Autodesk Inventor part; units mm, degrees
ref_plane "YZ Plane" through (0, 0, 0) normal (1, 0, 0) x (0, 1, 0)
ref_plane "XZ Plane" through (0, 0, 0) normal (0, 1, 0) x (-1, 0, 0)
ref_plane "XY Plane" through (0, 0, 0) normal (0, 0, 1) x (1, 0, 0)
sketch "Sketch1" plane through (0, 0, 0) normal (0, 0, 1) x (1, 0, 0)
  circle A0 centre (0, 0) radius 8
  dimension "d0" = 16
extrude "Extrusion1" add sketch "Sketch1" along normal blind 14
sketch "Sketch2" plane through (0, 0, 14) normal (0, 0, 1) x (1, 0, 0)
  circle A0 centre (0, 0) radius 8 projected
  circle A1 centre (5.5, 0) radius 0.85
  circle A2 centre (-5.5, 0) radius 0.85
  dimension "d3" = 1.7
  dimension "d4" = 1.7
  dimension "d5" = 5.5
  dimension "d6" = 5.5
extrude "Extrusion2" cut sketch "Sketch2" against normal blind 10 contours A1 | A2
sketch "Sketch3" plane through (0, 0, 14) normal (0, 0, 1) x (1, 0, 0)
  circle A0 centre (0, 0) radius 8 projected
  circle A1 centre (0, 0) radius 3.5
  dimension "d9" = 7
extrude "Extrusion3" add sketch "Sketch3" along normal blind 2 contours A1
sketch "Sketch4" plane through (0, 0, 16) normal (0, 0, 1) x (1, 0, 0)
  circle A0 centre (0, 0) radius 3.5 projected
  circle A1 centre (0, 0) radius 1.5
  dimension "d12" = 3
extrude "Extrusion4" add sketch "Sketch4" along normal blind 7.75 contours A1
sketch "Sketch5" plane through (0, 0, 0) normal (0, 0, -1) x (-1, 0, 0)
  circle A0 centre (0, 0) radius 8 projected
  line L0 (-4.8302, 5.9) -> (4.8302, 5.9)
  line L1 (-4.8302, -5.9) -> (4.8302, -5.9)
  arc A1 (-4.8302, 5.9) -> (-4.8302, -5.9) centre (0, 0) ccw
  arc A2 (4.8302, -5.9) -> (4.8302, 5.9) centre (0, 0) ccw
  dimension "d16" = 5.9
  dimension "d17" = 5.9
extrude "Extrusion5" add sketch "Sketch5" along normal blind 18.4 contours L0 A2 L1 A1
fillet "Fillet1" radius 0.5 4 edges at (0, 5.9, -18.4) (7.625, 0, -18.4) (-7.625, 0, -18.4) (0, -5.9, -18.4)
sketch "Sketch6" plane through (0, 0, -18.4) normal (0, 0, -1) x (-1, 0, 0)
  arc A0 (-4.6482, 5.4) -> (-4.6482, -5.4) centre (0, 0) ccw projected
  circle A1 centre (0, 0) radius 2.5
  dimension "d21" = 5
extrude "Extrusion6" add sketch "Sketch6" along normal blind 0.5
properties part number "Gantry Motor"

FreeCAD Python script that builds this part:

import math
import FreeCAD as App
import Part
import Sketcher


def edges_at(feature, points):
    """Names of the edges that pass closest to the given points."""
    edges = feature.Shape.Edges
    near = lambda p: min(range(len(edges)), key=lambda i: edges[i].distToShape(Part.Vertex(*p))[0])
    return sorted({f"Edge{near(p) + 1}" for p in points})

doc = App.newDocument("Part")
params = doc.addObject("Spreadsheet::Sheet", "Params")
for row, (alias, value) in enumerate([
    ("sketch1_diameter", "16 mm"),
    ("pad1_length", "14 mm"),
    ("sketch2_diameter", "1.7 mm"),
    ("pocket1_length", "10 mm"),
    ("sketch3_diameter", "7 mm"),
    ("pad2_length", "2 mm"),
    ("sketch4_diameter", "3 mm"),
    ("pad3_length", "7.75 mm"),
    ("pad4_length", "18.4 mm"),
    ("fillet_radius", "0.5 mm"),
    ("sketch6_diameter", "5 mm"),
    ("pad5_length", "0.5 mm"),
], start=1):
    params.set(f"A{row}", alias)
    params.set(f"B{row}", "=" + value)
    params.setAlias(f"B{row}", alias)

body = doc.addObject("PartDesign::Body", "Body")

# Sketch on XY plane
sketch1 = body.newObject("Sketcher::SketchObject", "Sketch")
sketch1.AttachmentSupport = (doc.getObject("XY_Plane"), [""])
sketch1.MapMode = "FlatFace"
sketch1.addGeometry(Part.Circle(App.Vector(0, 0, 0), App.Vector(0, 0, 1), 8), False)
sketch1.addConstraint([
    Sketcher.Constraint("Coincident", 0, 3, -1, 1),
    Sketcher.Constraint("Diameter", 0, 16.0),
])
sketch1.setExpression("Constraints[1]", "Params.sketch1_diameter")
pad1 = body.newObject("PartDesign::Pad", "Pad")
pad1.Profile = sketch1
pad1.setExpression("Length", "Params.pad1_length")

# Sketch on XY plane
sketch2 = body.newObject("Sketcher::SketchObject", "Sketch001")
sketch2.AttachmentSupport = (doc.getObject("XY_Plane"), [""])
sketch2.MapMode = "FlatFace"
sketch2.AttachmentOffset = App.Placement(App.Vector(0, 0, 14), App.Rotation())
sketch2.addGeometry([
    Part.Circle(App.Vector(5.5, 0, 0), App.Vector(0, 0, 1), 0.85),
    Part.Circle(App.Vector(-5.5, 0, 0), App.Vector(0, 0, 1), 0.85),
], False)
sketch2.addConstraint([
    Sketcher.Constraint("Equal", 0, 1),
    Sketcher.Constraint("Symmetric", 0, 3, 1, 3, -1, 1),
    Sketcher.Constraint("PointOnObject", 0, 3, -1),
    Sketcher.Constraint("Diameter", 0, 1.7),
    Sketcher.Constraint("DistanceX", -1, 1, 0, 3, 5.5),
])
sketch2.setExpression("Constraints[3]", "Params.sketch2_diameter")
pocket1 = body.newObject("PartDesign::Pocket", "Pocket")
pocket1.Profile = sketch2
pocket1.setExpression("Length", "Params.pocket1_length")

# Sketch on XY plane
sketch3 = body.newObject("Sketcher::SketchObject", "Sketch002")
sketch3.AttachmentSupport = (doc.getObject("XY_Plane"), [""])
sketch3.MapMode = "FlatFace"
sketch3.AttachmentOffset = App.Placement(App.Vector(0, 0, 14), App.Rotation())
sketch3.addGeometry(Part.Circle(App.Vector(0, 0, 0), App.Vector(0, 0, 1), 3.5), False)
sketch3.addConstraint([
    Sketcher.Constraint("Coincident", 0, 3, -1, 1),
    Sketcher.Constraint("Diameter", 0, 7.0),
])
sketch3.setExpression("Constraints[1]", "Params.sketch3_diameter")
pad2 = body.newObject("PartDesign::Pad", "Pad001")
pad2.Profile = sketch3
pad2.setExpression("Length", "Params.pad2_length")

# Sketch on XY plane
sketch4 = body.newObject("Sketcher::SketchObject", "Sketch003")
sketch4.AttachmentSupport = (doc.getObject("XY_Plane"), [""])
sketch4.MapMode = "FlatFace"
sketch4.AttachmentOffset = App.Placement(App.Vector(0, 0, 16), App.Rotation())
sketch4.addGeometry(Part.Circle(App.Vector(0, 0, 0), App.Vector(0, 0, 1), 1.5), False)
sketch4.addConstraint([
    Sketcher.Constraint("Coincident", 0, 3, -1, 1),
    Sketcher.Constraint("Diameter", 0, 3.0),
])
sketch4.setExpression("Constraints[1]", "Params.sketch4_diameter")
pad3 = body.newObject("PartDesign::Pad", "Pad002")
pad3.Profile = sketch4
pad3.setExpression("Length", "Params.pad3_length")

# Sketch on XY plane
sketch5 = body.newObject("Sketcher::SketchObject", "Sketch004")
sketch5.AttachmentSupport = (doc.getObject("XY_Plane"), [""])
sketch5.MapMode = "FlatFace"
sketch5.addGeometry([
    Part.LineSegment(App.Vector(-4.8302, 5.9, 0), App.Vector(4.8302, 5.9, 0)),
    Part.ArcOfCircle(Part.Circle(App.Vector(0, 0, 0), App.Vector(0, 0, 1), 7.625014), math.radians(-50.693569), math.radians(50.693569)),
    Part.LineSegment(App.Vector(4.8302, -5.9, 0), App.Vector(-4.8302, -5.9, 0)),
    Part.ArcOfCircle(Part.Circle(App.Vector(0, 0, 0), App.Vector(0, 0, 1), 7.625014), math.radians(129.306431), math.radians(230.693569)),
], False)
sketch5.addConstraint([
    Sketcher.Constraint("Coincident", 0, 2, 1, 2),
    Sketcher.Constraint("Coincident", 1, 1, 2, 1),
    Sketcher.Constraint("Coincident", 2, 2, 3, 2),
    Sketcher.Constraint("Coincident", 3, 1, 0, 1),
    Sketcher.Constraint("Horizontal", 0),
    Sketcher.Constraint("Horizontal", 2),
    Sketcher.Constraint("Coincident", 1, 3, -1, 1),
    Sketcher.Constraint("Coincident", 3, 3, -1, 1),
    Sketcher.Constraint("Equal", 1, 3),
    Sketcher.Constraint("Vertical", 0, 2, 1, 1),
    Sketcher.Constraint("DistanceY", -1, 1, 0, 2, 5.9),
    Sketcher.Constraint("Radius", 1, 7.625),
])
pad4 = body.newObject("PartDesign::Pad", "Pad003")
pad4.Profile = sketch5
pad4.setExpression("Length", "Params.pad4_length")
pad4.Reversed = True
doc.recompute()

fillet = body.newObject("PartDesign::Fillet", "Fillet")
fillet.Base = (pad4, edges_at(pad4, [
    (0, 5.9, -18.4),
    (7.625, 0, -18.4),
    (-7.625, 0, -18.4),
    (0, -5.9, -18.4),
]))
fillet.setExpression("Radius", "Params.fillet_radius")

# Sketch on XY plane
sketch6 = body.newObject("Sketcher::SketchObject", "Sketch005")
sketch6.AttachmentSupport = (doc.getObject("XY_Plane"), [""])
sketch6.MapMode = "FlatFace"
sketch6.AttachmentOffset = App.Placement(App.Vector(0, 0, -18.4), App.Rotation())
sketch6.addGeometry(Part.Circle(App.Vector(0, 0, 0), App.Vector(0, 0, 1), 2.5), False)
sketch6.addConstraint([
    Sketcher.Constraint("Coincident", 0, 3, -1, 1),
    Sketcher.Constraint("Diameter", 0, 5.0),
])
sketch6.setExpression("Constraints[1]", "Params.sketch6_diameter")
pad5 = body.newObject("PartDesign::Pad", "Pad004")
pad5.Profile = sketch6
pad5.setExpression("Length", "Params.pad5_length")
pad5.Reversed = True

doc.recompute()
